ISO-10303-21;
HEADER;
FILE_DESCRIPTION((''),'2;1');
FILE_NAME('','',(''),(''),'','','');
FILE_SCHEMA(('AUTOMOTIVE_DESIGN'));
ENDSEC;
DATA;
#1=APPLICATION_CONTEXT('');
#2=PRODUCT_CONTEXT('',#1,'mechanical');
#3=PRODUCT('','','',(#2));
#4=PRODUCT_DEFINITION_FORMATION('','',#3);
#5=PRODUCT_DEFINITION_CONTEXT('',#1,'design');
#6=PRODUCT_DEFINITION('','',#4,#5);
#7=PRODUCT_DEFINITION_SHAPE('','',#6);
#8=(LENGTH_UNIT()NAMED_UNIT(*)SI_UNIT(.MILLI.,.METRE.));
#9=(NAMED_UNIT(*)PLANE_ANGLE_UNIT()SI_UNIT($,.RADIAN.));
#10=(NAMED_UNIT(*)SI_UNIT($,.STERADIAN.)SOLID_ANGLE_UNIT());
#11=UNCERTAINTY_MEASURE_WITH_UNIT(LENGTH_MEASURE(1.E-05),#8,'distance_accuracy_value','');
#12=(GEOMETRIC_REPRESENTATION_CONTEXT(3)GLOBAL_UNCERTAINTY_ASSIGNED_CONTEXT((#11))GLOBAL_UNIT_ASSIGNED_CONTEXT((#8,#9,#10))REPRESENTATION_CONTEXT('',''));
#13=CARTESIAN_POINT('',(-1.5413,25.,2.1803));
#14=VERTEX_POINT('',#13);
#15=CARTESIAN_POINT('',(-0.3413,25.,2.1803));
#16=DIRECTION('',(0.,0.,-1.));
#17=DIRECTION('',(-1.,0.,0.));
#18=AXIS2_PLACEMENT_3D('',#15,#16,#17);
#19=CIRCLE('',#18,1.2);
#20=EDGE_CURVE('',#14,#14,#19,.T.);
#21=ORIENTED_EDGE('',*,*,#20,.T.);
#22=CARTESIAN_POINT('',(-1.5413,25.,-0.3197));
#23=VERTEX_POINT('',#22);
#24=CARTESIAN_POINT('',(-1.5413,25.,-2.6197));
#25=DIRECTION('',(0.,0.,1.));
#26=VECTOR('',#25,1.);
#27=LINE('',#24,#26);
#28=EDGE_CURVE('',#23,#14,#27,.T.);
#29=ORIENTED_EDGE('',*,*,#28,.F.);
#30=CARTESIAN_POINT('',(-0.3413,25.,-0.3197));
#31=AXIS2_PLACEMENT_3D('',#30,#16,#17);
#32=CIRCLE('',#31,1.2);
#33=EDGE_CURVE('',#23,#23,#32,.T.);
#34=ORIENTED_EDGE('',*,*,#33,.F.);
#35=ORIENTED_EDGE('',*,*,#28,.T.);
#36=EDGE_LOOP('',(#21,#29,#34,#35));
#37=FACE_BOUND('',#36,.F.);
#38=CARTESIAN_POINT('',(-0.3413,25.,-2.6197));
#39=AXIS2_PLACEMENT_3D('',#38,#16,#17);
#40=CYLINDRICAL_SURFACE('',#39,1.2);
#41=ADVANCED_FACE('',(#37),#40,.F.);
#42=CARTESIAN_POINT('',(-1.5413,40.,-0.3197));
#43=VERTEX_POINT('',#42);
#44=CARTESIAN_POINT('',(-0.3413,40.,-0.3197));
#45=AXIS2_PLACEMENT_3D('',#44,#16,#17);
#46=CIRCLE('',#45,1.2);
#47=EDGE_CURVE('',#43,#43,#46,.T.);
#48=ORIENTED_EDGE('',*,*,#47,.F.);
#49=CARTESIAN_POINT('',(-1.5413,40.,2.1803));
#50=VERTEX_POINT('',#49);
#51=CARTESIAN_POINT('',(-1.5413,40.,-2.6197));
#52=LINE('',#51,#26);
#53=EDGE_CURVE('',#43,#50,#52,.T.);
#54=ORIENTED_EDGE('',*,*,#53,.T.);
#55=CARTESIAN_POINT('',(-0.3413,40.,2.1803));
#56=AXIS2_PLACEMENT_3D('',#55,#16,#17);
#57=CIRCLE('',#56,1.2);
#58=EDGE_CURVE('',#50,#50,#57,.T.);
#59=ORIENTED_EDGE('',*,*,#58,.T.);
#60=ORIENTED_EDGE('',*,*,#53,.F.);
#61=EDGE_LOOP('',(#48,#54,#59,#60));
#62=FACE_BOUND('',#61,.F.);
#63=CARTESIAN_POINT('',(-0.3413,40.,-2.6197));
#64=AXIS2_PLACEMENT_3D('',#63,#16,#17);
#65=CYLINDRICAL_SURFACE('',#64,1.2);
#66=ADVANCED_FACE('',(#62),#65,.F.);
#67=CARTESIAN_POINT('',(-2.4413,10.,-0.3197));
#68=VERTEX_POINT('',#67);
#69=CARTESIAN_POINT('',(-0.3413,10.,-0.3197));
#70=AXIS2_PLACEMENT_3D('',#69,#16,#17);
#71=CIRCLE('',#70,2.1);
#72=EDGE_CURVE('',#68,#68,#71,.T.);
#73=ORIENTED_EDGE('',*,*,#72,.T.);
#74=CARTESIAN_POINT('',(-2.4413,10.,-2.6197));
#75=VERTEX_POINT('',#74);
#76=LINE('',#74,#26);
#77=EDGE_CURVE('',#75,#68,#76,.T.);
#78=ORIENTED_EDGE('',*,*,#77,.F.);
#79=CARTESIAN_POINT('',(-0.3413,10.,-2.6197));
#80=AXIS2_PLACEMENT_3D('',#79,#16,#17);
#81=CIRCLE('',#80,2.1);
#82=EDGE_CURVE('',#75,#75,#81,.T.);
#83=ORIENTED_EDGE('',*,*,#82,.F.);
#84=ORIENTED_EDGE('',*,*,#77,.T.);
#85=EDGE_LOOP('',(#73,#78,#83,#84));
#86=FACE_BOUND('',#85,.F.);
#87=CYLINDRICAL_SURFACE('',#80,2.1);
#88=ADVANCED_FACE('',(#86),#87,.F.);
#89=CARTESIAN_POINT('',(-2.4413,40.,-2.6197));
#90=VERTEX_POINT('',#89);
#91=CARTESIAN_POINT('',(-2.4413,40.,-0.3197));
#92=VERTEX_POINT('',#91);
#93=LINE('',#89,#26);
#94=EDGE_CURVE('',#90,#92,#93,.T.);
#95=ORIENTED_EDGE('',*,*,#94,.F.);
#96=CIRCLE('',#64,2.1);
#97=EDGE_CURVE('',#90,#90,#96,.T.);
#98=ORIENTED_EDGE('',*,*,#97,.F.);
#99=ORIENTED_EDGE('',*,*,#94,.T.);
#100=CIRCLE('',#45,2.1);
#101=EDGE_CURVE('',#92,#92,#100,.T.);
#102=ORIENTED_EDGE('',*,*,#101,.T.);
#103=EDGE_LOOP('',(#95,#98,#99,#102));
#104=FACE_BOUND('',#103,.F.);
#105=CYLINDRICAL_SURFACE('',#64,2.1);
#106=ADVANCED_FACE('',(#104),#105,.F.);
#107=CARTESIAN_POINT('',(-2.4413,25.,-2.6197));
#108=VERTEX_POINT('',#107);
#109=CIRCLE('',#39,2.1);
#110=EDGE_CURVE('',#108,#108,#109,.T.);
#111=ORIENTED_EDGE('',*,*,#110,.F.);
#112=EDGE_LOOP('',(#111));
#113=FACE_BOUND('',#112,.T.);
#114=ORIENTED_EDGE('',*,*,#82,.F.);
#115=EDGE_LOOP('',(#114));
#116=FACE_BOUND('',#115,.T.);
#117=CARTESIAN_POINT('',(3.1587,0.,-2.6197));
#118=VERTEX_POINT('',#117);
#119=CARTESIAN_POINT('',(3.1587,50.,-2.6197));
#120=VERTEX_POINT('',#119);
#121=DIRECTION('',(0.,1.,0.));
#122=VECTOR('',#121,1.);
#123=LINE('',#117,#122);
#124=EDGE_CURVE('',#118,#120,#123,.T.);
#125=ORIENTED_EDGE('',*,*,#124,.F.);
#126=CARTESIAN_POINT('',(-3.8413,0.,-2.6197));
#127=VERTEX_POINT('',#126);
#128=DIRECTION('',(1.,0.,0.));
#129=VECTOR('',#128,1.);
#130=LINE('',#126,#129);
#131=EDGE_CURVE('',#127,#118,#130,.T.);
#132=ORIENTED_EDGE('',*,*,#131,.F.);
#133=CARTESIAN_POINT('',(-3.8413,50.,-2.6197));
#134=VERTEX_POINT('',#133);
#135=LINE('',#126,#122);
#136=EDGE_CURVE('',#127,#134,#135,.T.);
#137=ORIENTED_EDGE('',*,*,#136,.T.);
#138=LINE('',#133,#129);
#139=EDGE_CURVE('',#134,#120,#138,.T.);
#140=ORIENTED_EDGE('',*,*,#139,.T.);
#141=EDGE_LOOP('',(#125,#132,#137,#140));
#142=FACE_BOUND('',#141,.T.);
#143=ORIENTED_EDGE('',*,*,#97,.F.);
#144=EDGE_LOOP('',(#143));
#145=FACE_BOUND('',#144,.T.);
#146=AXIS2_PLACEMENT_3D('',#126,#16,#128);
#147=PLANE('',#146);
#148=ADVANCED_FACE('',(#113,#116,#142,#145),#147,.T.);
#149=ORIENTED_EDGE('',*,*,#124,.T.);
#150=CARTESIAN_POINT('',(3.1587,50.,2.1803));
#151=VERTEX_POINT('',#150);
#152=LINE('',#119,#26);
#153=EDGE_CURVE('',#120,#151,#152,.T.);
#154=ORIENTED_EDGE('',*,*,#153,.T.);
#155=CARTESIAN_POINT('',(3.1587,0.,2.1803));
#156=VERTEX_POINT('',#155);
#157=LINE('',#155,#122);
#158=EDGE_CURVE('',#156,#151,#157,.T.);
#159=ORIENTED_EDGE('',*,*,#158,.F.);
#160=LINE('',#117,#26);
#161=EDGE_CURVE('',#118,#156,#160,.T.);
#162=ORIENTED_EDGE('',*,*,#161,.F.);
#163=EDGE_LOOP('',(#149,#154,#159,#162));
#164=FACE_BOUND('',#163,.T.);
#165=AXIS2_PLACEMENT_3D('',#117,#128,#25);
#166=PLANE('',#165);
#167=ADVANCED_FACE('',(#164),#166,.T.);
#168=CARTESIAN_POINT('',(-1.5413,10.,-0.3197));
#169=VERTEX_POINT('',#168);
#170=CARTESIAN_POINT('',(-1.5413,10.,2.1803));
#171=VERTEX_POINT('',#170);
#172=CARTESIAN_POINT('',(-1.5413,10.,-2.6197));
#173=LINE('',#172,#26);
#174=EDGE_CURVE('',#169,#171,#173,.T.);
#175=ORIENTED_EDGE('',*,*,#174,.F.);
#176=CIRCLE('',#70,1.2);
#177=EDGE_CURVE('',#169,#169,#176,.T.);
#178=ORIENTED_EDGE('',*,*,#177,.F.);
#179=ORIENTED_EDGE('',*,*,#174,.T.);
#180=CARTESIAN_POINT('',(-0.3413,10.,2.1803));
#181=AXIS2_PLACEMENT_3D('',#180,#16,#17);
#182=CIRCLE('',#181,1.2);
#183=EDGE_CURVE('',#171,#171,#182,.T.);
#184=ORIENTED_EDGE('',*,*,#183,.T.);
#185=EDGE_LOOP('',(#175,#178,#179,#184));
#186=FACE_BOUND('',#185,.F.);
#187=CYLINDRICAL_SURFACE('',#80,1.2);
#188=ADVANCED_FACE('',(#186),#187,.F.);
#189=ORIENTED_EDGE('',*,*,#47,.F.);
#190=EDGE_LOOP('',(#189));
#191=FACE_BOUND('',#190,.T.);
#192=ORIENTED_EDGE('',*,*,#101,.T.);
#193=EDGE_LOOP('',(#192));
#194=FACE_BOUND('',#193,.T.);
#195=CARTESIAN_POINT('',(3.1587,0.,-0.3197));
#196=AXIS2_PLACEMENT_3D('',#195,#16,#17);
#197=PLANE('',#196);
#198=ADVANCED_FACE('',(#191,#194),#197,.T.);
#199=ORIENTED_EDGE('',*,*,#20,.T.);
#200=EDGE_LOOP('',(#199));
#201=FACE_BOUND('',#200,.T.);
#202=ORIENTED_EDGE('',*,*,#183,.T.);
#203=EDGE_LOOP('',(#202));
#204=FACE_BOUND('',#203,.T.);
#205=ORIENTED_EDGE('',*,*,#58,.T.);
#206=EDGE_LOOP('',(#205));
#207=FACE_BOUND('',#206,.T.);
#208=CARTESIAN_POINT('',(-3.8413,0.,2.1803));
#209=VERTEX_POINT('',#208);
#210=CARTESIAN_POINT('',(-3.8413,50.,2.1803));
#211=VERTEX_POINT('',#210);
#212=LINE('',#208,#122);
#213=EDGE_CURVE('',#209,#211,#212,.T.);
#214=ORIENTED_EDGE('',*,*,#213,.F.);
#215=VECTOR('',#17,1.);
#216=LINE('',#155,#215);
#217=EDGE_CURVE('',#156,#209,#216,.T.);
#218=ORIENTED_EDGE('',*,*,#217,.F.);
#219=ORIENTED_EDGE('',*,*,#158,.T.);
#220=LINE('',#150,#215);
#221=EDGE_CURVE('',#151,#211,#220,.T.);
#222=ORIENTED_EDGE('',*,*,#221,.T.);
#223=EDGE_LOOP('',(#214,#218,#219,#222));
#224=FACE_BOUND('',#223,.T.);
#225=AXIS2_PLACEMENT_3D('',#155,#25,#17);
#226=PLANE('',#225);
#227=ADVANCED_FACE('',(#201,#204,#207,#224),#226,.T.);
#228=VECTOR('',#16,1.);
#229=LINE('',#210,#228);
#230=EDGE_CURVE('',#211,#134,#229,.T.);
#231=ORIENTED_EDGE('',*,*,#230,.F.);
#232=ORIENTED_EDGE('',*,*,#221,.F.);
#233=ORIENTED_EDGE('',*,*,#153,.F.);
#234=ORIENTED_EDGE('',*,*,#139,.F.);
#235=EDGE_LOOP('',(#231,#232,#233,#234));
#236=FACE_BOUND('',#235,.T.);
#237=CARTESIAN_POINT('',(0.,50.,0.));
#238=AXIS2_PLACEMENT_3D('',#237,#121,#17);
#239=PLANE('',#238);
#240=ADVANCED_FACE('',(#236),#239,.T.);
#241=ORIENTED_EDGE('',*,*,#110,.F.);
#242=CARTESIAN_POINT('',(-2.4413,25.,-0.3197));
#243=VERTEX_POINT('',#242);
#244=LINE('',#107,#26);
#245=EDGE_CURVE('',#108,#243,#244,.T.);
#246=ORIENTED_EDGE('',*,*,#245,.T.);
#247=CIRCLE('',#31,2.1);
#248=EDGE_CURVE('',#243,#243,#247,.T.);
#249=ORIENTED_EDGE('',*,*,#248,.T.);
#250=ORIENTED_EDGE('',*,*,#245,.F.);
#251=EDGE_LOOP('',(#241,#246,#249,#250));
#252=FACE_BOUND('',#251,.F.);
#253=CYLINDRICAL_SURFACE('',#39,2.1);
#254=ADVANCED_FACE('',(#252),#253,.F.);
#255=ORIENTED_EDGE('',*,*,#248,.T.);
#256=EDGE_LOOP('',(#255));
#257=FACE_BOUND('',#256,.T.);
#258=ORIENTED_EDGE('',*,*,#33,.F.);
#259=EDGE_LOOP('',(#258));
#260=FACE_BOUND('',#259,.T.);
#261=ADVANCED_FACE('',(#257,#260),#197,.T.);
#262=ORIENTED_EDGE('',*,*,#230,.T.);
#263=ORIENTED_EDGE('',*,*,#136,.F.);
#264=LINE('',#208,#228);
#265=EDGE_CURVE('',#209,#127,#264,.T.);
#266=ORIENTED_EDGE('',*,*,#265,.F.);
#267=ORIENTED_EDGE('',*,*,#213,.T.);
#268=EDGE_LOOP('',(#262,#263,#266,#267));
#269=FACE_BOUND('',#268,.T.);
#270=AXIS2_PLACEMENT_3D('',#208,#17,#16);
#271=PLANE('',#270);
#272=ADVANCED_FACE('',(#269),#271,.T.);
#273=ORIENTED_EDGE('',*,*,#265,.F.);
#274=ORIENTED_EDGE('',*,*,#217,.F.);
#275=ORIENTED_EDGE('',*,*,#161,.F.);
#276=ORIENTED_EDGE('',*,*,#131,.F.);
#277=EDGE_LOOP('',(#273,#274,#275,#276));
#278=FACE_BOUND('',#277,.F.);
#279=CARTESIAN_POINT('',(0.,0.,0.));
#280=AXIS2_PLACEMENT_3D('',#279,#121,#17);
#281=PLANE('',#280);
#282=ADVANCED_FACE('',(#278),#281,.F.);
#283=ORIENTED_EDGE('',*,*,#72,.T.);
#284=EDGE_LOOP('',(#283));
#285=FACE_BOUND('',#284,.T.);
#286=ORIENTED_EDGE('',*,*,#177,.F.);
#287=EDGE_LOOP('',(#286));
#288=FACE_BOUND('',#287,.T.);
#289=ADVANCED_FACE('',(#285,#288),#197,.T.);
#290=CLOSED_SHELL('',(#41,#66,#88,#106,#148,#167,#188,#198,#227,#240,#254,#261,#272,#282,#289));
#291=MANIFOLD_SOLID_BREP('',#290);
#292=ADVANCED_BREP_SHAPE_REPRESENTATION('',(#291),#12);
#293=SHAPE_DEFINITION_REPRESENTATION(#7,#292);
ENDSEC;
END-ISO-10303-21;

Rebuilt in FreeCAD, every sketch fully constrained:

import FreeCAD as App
import Part
import Sketcher
from FreeCAD import Vector

doc = App.newDocument("Part")
body = doc.addObject("PartDesign::Body", "Body")

sketch1 = body.newObject("Sketcher::SketchObject", "Sketch")
sketch1.AttachmentSupport = (doc.getObject("XZ_Plane"), [""])
sketch1.MapMode = "FlatFace"
sketch1.addGeometry([
    Part.LineSegment(Vector(3.2, -2.6, 0), Vector(-3.8, -2.6, 0)),
    Part.LineSegment(Vector(-3.8, -2.6, 0), Vector(-3.8, 2.2, 0)),
    Part.LineSegment(Vector(-3.8, 2.2, 0), Vector(3.2, 2.2, 0)),
    Part.LineSegment(Vector(3.2, 2.2, 0), Vector(3.2, -2.6, 0)),
], False)
sketch1.addConstraint([
    Sketcher.Constraint("Coincident", 0, 2, 1, 1),
    Sketcher.Constraint("Coincident", 1, 2, 2, 1),
    Sketcher.Constraint("Coincident", 2, 2, 3, 1),
    Sketcher.Constraint("Coincident", 3, 2, 0, 1),
    Sketcher.Constraint("Horizontal", 0),
    Sketcher.Constraint("Vertical", 1),
    Sketcher.Constraint("Horizontal", 2),
    Sketcher.Constraint("Vertical", 3),
    Sketcher.Constraint("DistanceX", 0, 2, 0, 1, 7.0),
    Sketcher.Constraint("DistanceY", 1, 1, 1, 2, 4.8),
    Sketcher.Constraint("DistanceX", 0, 2, -1, 1, 3.8413),
    Sketcher.Constraint("DistanceY", 0, 2, -1, 1, 2.6197),
])
pad1 = body.newObject("PartDesign::Pad", "Pad")
pad1.Profile = sketch1
pad1.Length = 50
pad1.Reversed = True

sketch2 = body.newObject("Sketcher::SketchObject", "Sketch001")
sketch2.AttachmentSupport = (doc.getObject("XY_Plane"), [""])
sketch2.MapMode = "FlatFace"
sketch2.AttachmentOffset = App.Placement(Vector(0, 0, -2.6197), App.Rotation())
sketch2.addGeometry([
    Part.Circle(Vector(-0.3, 10, 0), Vector(0, 0, 1), 1.2),
    Part.Circle(Vector(-0.3, 25, 0), Vector(0, 0, 1), 1.2),
    Part.Circle(Vector(-0.3, 40, 0), Vector(0, 0, 1), 1.2),
], False)
sketch2.addConstraint([
    Sketcher.Constraint("Equal", 0, 1),
    Sketcher.Constraint("Equal", 1, 2),
    Sketcher.Constraint("Vertical", 0, 3, 1, 3),
    Sketcher.Constraint("Vertical", 1, 3, 2, 3),
    Sketcher.Constraint("Diameter", 0, 2.4),
    Sketcher.Constraint("DistanceY", -1, 1, 0, 3, 10.0),
    Sketcher.Constraint("DistanceY", 0, 3, 1, 3, 15.0),
    Sketcher.Constraint("DistanceY", 1, 3, 2, 3, 15.0),
    Sketcher.Constraint("DistanceX", 0, 3, -1, 1, 0.3413),
])
pocket1 = body.newObject("PartDesign::Pocket", "Pocket")
pocket1.Profile = sketch2
pocket1.Type = "ThroughAll"
pocket1.Reversed = True

sketch3 = body.newObject("Sketcher::SketchObject", "Sketch002")
sketch3.AttachmentSupport = (doc.getObject("XY_Plane"), [""])
sketch3.MapMode = "FlatFace"
sketch3.AttachmentOffset = App.Placement(Vector(0, 0, -2.6197), App.Rotation())
sketch3.addGeometry([
    Part.Circle(Vector(-0.3, 40, 0), Vector(0, 0, 1), 2.1),
    Part.Circle(Vector(-0.3, 25, 0), Vector(0, 0, 1), 2.1),
    Part.Circle(Vector(-0.3, 10, 0), Vector(0, 0, 1), 2.1),
], False)
sketch3.addConstraint([
    Sketcher.Constraint("Equal", 0, 1),
    Sketcher.Constraint("Equal", 1, 2),
    Sketcher.Constraint("Vertical", 0, 3, 1, 3),
    Sketcher.Constraint("Vertical", 1, 3, 2, 3),
    Sketcher.Constraint("Diameter", 0, 4.2),
    Sketcher.Constraint("DistanceY", -1, 1, 0, 3, 40.0),
    Sketcher.Constraint("DistanceY", -1, 1, 1, 3, 25.0),
    Sketcher.Constraint("DistanceY", -1, 1, 2, 3, 10.0),
    Sketcher.Constraint("DistanceX", 0, 3, -1, 1, 0.3413),
])
pocket2 = body.newObject("PartDesign::Pocket", "Pocket001")
pocket2.Profile = sketch3
pocket2.Length = 2.3
pocket2.Reversed = True

doc.recompute()
